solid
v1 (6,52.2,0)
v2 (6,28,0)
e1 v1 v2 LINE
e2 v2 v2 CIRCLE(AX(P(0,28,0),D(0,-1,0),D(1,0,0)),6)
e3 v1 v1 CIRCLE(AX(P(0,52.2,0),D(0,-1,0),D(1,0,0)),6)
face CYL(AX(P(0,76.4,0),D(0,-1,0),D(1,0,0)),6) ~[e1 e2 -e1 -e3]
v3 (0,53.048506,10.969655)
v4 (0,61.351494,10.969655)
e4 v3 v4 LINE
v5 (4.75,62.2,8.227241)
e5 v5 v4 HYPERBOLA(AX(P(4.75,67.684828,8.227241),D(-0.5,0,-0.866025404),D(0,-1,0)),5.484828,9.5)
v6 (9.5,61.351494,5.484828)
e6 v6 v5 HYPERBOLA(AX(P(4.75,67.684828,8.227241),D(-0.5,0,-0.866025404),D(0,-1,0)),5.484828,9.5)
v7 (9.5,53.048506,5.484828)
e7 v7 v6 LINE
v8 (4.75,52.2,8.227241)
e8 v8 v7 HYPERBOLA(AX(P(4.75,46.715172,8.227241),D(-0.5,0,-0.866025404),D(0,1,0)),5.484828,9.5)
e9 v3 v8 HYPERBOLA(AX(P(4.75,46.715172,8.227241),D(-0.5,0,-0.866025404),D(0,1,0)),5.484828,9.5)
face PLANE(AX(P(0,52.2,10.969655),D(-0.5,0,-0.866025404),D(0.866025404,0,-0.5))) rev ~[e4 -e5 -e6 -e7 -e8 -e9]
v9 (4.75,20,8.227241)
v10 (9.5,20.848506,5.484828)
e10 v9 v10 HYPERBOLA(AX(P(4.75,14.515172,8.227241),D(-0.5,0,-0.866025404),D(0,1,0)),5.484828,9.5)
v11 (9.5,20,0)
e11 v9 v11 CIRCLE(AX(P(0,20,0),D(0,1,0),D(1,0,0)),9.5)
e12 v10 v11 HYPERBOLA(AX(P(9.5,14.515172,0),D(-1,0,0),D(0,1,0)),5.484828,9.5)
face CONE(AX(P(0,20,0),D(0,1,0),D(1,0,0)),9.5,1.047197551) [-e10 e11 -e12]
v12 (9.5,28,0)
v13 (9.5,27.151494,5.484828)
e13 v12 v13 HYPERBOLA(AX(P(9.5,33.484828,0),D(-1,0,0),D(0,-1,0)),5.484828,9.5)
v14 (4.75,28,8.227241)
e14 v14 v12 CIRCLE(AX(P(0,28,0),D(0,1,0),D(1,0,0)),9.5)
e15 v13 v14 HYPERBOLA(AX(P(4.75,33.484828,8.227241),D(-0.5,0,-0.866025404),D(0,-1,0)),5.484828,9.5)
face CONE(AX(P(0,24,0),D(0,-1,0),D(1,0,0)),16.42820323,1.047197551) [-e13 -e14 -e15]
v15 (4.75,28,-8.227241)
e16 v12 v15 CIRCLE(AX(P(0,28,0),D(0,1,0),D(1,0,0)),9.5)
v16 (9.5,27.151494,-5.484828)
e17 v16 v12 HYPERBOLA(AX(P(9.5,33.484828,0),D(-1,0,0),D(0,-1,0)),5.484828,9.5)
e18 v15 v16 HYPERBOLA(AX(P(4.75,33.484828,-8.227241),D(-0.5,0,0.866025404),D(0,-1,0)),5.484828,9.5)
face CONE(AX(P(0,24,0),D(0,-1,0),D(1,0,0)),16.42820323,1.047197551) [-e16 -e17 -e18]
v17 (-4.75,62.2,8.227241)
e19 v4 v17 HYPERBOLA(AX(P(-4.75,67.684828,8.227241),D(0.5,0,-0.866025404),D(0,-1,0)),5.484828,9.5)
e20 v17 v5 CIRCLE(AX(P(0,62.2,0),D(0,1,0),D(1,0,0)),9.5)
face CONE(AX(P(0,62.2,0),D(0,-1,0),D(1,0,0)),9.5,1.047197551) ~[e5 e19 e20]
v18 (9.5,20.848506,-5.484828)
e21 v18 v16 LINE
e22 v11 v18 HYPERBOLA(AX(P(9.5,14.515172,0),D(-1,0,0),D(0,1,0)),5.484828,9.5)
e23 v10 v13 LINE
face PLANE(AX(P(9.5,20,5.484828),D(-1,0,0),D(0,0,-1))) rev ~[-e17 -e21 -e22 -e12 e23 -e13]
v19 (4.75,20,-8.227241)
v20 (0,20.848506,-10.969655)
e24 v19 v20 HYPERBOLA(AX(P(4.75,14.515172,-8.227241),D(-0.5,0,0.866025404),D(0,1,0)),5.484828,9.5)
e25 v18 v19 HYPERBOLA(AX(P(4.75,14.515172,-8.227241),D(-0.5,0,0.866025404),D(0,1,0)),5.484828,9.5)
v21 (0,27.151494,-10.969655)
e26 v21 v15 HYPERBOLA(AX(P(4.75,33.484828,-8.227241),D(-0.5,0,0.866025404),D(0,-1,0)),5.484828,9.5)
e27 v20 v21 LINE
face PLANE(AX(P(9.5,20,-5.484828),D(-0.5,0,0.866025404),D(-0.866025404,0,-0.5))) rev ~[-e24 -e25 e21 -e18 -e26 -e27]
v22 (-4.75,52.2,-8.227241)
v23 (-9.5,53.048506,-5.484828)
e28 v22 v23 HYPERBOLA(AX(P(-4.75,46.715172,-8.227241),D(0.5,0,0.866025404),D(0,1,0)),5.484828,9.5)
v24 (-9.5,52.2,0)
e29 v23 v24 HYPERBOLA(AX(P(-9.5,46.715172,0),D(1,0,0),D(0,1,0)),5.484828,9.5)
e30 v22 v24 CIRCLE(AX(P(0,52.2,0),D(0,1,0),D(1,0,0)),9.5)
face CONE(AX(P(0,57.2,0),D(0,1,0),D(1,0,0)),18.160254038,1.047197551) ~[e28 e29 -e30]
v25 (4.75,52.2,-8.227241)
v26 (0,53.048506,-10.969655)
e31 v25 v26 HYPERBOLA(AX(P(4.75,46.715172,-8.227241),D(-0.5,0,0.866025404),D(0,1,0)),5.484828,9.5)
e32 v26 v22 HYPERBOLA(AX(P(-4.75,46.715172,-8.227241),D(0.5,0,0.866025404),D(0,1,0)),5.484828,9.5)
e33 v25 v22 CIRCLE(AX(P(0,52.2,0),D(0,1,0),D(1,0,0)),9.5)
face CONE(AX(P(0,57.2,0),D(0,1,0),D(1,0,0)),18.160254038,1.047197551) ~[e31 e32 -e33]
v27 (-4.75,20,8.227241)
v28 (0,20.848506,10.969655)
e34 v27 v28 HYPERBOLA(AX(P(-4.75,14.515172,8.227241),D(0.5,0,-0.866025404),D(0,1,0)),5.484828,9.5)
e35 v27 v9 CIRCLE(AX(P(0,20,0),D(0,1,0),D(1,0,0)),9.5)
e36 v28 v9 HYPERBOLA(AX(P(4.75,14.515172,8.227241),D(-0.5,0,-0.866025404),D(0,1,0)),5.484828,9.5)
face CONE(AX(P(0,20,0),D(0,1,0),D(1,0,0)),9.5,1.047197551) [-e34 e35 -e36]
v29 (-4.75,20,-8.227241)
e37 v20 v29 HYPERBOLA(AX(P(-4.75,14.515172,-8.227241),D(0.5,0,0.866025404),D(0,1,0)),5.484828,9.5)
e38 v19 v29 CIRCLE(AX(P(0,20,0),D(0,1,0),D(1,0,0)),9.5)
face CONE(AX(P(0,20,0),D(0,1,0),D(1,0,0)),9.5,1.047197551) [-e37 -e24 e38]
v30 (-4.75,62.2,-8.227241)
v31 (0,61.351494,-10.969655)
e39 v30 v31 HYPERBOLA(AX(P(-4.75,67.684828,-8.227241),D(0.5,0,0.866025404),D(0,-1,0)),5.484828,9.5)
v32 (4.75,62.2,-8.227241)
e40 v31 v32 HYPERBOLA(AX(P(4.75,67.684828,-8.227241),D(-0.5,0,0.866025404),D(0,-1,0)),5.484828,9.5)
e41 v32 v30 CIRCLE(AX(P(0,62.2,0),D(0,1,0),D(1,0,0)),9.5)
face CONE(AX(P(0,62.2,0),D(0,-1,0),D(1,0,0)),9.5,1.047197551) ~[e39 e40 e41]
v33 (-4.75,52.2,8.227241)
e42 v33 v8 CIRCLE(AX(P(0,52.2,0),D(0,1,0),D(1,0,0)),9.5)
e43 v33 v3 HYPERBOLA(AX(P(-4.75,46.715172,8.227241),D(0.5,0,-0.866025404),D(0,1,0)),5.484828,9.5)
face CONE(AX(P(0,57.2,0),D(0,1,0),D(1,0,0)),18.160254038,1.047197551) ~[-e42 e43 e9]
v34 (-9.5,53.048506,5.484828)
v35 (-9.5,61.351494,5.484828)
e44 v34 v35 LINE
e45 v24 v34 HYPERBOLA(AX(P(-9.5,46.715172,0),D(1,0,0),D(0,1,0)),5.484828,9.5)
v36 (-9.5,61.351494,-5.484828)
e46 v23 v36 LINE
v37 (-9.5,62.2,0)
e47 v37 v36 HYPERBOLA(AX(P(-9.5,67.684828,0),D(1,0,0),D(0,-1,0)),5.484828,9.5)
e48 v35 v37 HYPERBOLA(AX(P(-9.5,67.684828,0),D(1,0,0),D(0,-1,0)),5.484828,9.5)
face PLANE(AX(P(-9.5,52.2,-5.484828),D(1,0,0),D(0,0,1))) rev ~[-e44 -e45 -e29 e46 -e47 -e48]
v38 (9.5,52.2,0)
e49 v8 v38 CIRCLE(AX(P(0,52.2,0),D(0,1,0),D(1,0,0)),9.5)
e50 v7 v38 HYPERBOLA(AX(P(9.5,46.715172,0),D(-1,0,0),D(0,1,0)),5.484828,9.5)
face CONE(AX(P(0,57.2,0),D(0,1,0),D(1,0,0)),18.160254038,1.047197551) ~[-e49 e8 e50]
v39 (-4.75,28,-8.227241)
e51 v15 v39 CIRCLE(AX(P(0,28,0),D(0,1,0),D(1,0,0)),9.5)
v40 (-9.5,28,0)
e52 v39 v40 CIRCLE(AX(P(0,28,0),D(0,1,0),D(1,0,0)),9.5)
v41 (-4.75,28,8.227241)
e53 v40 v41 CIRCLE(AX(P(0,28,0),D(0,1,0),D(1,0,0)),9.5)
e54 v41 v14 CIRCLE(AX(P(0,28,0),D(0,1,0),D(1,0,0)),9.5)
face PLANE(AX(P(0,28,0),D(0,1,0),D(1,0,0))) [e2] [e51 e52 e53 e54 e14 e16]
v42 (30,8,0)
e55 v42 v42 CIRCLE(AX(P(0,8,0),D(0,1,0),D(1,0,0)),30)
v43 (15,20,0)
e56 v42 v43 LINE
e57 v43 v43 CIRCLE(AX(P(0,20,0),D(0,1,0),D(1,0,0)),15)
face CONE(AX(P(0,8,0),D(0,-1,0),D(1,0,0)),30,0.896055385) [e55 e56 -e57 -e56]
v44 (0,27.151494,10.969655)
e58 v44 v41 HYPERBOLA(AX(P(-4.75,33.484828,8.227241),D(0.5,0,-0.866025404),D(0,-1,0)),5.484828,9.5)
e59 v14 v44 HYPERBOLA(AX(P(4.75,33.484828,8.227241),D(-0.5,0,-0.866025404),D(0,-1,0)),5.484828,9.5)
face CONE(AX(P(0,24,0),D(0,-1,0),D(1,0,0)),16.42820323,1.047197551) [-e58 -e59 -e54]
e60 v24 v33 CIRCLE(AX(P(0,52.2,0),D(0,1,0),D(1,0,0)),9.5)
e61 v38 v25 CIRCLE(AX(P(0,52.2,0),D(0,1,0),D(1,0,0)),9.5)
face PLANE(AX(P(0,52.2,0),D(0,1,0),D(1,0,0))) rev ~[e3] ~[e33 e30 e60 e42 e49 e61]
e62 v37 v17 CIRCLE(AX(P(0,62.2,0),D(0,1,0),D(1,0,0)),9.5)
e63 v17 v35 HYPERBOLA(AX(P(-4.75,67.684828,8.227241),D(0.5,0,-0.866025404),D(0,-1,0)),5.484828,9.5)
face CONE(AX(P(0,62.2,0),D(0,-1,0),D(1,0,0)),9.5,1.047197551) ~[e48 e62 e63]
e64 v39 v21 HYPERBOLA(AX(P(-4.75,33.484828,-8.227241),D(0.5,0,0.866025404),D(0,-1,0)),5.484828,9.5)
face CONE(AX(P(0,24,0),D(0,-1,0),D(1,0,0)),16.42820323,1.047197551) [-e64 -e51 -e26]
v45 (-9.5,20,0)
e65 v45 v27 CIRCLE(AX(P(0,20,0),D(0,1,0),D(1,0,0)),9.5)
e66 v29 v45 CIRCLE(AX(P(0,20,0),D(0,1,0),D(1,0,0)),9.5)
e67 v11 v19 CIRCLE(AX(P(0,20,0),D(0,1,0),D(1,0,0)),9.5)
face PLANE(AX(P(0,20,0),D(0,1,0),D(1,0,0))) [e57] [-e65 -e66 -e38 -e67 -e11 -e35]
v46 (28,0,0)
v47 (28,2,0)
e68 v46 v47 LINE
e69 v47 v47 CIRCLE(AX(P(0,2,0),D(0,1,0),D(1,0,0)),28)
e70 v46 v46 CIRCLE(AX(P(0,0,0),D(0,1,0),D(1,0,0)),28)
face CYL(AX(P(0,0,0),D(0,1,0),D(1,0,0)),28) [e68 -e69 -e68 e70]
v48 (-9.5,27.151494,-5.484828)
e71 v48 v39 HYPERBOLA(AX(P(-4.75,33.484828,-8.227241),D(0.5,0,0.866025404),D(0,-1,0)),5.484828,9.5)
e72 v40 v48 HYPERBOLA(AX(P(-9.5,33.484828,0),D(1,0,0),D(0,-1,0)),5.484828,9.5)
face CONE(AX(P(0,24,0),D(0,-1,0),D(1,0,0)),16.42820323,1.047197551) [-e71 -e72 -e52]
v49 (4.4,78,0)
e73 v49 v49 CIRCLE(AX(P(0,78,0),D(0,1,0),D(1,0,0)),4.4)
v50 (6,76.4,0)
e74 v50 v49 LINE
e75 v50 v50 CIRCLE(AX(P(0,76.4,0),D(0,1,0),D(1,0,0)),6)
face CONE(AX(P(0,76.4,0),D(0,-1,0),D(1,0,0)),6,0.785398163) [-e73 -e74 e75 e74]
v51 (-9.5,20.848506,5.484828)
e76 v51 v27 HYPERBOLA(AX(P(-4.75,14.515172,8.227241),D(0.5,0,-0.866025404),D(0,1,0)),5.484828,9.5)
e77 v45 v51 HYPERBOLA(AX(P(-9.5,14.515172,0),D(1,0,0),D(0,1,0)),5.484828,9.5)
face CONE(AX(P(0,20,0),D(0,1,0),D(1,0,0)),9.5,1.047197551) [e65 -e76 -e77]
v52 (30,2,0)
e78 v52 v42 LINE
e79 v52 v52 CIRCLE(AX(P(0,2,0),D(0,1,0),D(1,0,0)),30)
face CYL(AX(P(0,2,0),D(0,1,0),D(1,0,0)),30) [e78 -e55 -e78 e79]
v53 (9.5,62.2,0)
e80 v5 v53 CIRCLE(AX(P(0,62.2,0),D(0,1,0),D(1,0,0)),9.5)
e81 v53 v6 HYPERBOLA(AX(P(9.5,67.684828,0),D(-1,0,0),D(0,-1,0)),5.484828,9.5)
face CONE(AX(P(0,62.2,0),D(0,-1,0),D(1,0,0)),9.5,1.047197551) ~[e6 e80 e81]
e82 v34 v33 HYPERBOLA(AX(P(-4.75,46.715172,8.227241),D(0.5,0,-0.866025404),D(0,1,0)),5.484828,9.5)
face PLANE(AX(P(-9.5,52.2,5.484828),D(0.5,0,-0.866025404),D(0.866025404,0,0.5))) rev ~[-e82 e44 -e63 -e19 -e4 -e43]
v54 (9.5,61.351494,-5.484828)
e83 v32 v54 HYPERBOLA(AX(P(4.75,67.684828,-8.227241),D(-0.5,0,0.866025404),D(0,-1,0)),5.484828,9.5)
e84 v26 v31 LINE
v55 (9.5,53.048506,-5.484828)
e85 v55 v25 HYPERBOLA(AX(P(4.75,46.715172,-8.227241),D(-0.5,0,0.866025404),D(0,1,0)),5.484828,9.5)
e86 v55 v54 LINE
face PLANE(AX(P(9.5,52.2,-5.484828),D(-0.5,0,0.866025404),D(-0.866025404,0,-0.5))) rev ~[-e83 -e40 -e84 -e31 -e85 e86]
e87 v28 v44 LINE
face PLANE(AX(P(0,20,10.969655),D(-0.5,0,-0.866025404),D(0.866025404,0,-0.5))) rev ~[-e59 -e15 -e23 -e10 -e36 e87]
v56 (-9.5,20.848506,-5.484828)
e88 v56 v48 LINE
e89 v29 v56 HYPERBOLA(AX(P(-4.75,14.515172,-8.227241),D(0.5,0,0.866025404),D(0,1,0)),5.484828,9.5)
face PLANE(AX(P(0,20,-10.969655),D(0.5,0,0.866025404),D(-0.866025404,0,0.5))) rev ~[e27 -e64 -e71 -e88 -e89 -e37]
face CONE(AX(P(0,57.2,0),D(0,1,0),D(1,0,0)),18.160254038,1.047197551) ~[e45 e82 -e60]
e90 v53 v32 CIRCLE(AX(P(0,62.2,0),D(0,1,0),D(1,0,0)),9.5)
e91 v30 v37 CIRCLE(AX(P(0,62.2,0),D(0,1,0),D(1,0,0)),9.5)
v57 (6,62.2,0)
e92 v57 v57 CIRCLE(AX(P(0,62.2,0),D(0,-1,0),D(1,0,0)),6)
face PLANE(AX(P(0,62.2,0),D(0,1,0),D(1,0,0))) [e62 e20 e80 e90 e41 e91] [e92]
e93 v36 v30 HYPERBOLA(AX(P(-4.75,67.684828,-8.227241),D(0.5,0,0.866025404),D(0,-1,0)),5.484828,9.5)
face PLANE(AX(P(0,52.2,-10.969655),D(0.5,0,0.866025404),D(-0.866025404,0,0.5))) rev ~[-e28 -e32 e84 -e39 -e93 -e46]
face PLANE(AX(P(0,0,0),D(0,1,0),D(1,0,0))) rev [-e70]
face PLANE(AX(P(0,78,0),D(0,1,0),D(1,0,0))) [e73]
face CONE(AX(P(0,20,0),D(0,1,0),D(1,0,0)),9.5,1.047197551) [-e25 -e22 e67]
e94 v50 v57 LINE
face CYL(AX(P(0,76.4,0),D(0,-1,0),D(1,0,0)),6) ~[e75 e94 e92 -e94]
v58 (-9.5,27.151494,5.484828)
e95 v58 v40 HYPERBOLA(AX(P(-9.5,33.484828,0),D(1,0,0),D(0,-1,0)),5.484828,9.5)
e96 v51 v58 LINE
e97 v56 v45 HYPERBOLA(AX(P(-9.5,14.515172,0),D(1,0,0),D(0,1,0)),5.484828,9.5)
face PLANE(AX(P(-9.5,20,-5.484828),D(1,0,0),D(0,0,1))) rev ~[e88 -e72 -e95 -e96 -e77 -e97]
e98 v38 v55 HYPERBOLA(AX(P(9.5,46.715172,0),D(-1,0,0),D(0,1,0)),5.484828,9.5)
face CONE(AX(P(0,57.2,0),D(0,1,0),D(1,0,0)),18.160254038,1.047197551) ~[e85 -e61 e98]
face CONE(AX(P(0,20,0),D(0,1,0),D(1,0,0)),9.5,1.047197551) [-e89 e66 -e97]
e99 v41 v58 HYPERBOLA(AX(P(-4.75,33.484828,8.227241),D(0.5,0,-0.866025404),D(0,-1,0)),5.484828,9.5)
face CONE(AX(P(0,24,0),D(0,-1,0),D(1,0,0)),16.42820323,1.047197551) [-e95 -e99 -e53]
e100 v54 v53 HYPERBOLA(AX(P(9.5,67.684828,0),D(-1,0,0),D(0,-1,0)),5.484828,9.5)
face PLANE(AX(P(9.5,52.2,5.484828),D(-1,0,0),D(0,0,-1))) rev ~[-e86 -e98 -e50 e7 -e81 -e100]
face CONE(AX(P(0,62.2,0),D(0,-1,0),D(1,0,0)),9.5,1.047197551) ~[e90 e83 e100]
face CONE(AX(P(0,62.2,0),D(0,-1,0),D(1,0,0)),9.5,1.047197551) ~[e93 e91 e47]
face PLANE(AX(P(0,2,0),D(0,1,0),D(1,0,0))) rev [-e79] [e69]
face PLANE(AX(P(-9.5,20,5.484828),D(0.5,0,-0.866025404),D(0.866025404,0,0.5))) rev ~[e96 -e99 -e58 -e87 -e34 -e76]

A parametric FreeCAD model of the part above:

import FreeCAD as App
import Part
import Sketcher

V = App.Vector
Q = App.Units.Quantity


def add_polygon(sketch, points):
    """Adds a closed chain of lines whose ends are joined by coincident constraints."""
    first, n = sketch.GeometryCount, len(points)
    for a, b in zip(points, points[1:] + points[:1]):
        sketch.addGeometry(Part.LineSegment(App.Vector(*a, 0), App.Vector(*b, 0)), False)
    for i in range(n):
        sketch.addConstraint(Sketcher.Constraint("Coincident", first + i, 2, first + (i + 1) % n, 1))

doc = App.newDocument("Part")
body = doc.addObject("PartDesign::Body", "Body")

# Sketch on XY plane
sketch1 = doc.addObject("Sketcher::SketchObject", "Sketch")
body.addObject(sketch1)
sketch1.AttachmentSupport = (doc.XY_Plane, [""])
sketch1.MapMode = "FlatFace"
add_polygon(sketch1, [(-28, 0), (0, 0), (0, 78), (-4.4, 78), (-6, 76.4), (-6, 20), (-15, 20), (-30, 8), (-30, 2), (-28, 2)])  # lines 0-9
sketch1.addConstraint([
    Sketcher.Constraint("Horizontal", 0),
    Sketcher.Constraint("Vertical", 1),
    Sketcher.Constraint("Horizontal", 2),
    Sketcher.Constraint("Vertical", 4),
    Sketcher.Constraint("Horizontal", 5),
    Sketcher.Constraint("Vertical", 7),
    Sketcher.Constraint("Horizontal", 8),
    Sketcher.Constraint("Vertical", 9),
    Sketcher.Constraint("Coincident", 0, 2, -1, 1),
    Sketcher.Constraint("Equal", 8, 9),
    Sketcher.Constraint("DistanceX", 0, 1, 0, 2, 28.0),
    Sketcher.Constraint("DistanceX", 5, 2, 5, 1, 9.0),
    Sketcher.Constraint("DistanceX", 8, 1, 8, 2, 2.0),
    Sketcher.Constraint("DistanceY", 1, 1, 1, 2, 78.0),
    Sketcher.Constraint("DistanceY", 7, 2, 7, 1, 6.0),
    Sketcher.Constraint("Angle", 3, Q("-135 deg")),
    Sketcher.Constraint("DistanceX", 2, 2, 2, 1, 4.4),
    Sketcher.Constraint("DistanceY", 4, 2, 4, 1, 56.4),
    Sketcher.Constraint("DistanceX", 3, 2, -1, 1, 6.0),
])
revolution = doc.addObject("PartDesign::Revolution", "Revolution")
body.addObject(revolution)
revolution.Profile = sketch1
revolution.ReferenceAxis = (sketch1, ["V_Axis"])
revolution.Angle = 360

# Sketch on XZ plane
sketch2 = doc.addObject("Sketcher::SketchObject", "Sketch001")
body.addObject(sketch2)
sketch2.AttachmentSupport = (doc.XZ_Plane, [""])
sketch2.MapMode = "FlatFace"
sketch2.AttachmentOffset = App.Placement(V(0, 0, -20), App.Rotation())
add_polygon(sketch2, [(0, -10.969655), (-9.5, -5.484828), (-9.5, 5.484828), (0, 10.969655), (9.5, 5.484828), (9.5, -5.484828)])  # lines 0-5
sketch2.addConstraint([
    Sketcher.Constraint("Vertical", 1),
    Sketcher.Constraint("Vertical", 4),
    Sketcher.Constraint("Symmetric", 0, 2, 3, 2, -1, 1),
    Sketcher.Constraint("Symmetric", 2, 2, 5, 2, -1, 1),
    Sketcher.Constraint("PointOnObject", 2, 2, -2),
    Sketcher.Constraint("Parallel", 2, 5),
    Sketcher.Constraint("Horizontal", 1, 2, 3, 2),
    Sketcher.Constraint("Angle", 0, Q("150 deg")),
    Sketcher.Constraint("DistanceX", 1, 2, 3, 2, 19.0),
    Sketcher.Constraint("DistanceY", 1, 1, 1, 2, 10.969655),
])
pad1 = doc.addObject("PartDesign::Pad", "Pad")
body.addObject(pad1)
pad1.Profile = sketch2
pad1.Length = 8
pad1.Reversed = True

# Sketch on XZ plane
sketch3 = doc.addObject("Sketcher::SketchObject", "Sketch002")
body.addObject(sketch3)
sketch3.AttachmentSupport = (doc.XZ_Plane, [""])
sketch3.MapMode = "FlatFace"
sketch3.AttachmentOffset = App.Placement(V(0, 0, -52.2), App.Rotation())
add_polygon(sketch3, [(9.5, -5.484828), (0, -10.969655), (-9.5, -5.484828), (-9.5, 5.484828), (0, 10.969655), (9.5, 5.484828)])  # lines 0-5
sketch3.addConstraint([
    Sketcher.Constraint("Vertical", 2),
    Sketcher.Constraint("Vertical", 5),
    Sketcher.Constraint("Symmetric", 0, 2, 3, 2, -1, 1),
    Sketcher.Constraint("Symmetric", 1, 2, 4, 2, -1, 1),
    Sketcher.Constraint("PointOnObject", 0, 2, -2),
    Sketcher.Constraint("Parallel", 0, 3),
    Sketcher.Constraint("Horizontal", 2, 2, 4, 2),
    Sketcher.Constraint("Angle", 0, Q("-150 deg")),
    Sketcher.Constraint("DistanceX", 2, 2, 4, 2, 19.0),
    Sketcher.Constraint("DistanceY", 2, 1, 2, 2, 10.969655),
])
pad2 = doc.addObject("PartDesign::Pad", "Pad001")
body.addObject(pad2)
pad2.Profile = sketch3
pad2.Length = 10
pad2.Reversed = True

# Sketch on XY plane
sketch4 = doc.addObject("Sketcher::SketchObject", "Sketch003")
body.addObject(sketch4)
sketch4.AttachmentSupport = (doc.XY_Plane, [""])
sketch4.MapMode = "FlatFace"
add_polygon(sketch4, [(-9.5, 62.2), (-18.160254, 62.2), (-18.160254, 57.2)])  # lines 0-2
add_polygon(sketch4, [(-18.160254, 57.2), (-18.160254, 52.2), (-9.5, 52.2)])  # lines 3-5
add_polygon(sketch4, [(-16.428203, 28), (-16.428203, 24), (-9.5, 28)])  # lines 6-8
add_polygon(sketch4, [(-16.428203, 24), (-16.428203, 20), (-9.5, 20)])  # lines 9-11
sketch4.addConstraint([
    Sketcher.Constraint("Horizontal", 0),
    Sketcher.Constraint("Vertical", 1),
    Sketcher.Constraint("Vertical", 3),
    Sketcher.Constraint("Horizontal", 4),
    Sketcher.Constraint("Vertical", 6),
    Sketcher.Constraint("Horizontal", 8),
    Sketcher.Constraint("Vertical", 9),
    Sketcher.Constraint("Horizontal", 10),
    Sketcher.Constraint("Coincident", 5, 2, 1, 2),
    Sketcher.Constraint("Coincident", 11, 2, 6, 2),
    Sketcher.Constraint("Parallel", 2, 7),
    Sketcher.Constraint("Parallel", 5, 11),
    Sketcher.Constraint("Vertical", 2, 2, 4, 2),
    Sketcher.Constraint("Vertical", 4, 2, 7, 2),
    Sketcher.Constraint("Vertical", 7, 2, 10, 2),
    Sketcher.Constraint("Equal", 1, 3),
    Sketcher.Constraint("DistanceY", 1, 2, 1, 1, 5.0),
    Sketcher.Constraint("DistanceY", 6, 2, 6, 1, 4.0),
    Sketcher.Constraint("Angle", 2, Q("30 deg")),
    Sketcher.Constraint("DistanceY", -1, 1, 6, 2, 24.0),
    Sketcher.Constraint("DistanceY", -1, 1, 0, 2, 62.2),
    Sketcher.Constraint("DistanceX", 2, 2, -1, 1, 9.5),
])
groove = doc.addObject("PartDesign::Groove", "Groove")
body.addObject(groove)
groove.Profile = sketch4
groove.ReferenceAxis = (sketch4, ["V_Axis"])
groove.Angle = 360

doc.recompute()
